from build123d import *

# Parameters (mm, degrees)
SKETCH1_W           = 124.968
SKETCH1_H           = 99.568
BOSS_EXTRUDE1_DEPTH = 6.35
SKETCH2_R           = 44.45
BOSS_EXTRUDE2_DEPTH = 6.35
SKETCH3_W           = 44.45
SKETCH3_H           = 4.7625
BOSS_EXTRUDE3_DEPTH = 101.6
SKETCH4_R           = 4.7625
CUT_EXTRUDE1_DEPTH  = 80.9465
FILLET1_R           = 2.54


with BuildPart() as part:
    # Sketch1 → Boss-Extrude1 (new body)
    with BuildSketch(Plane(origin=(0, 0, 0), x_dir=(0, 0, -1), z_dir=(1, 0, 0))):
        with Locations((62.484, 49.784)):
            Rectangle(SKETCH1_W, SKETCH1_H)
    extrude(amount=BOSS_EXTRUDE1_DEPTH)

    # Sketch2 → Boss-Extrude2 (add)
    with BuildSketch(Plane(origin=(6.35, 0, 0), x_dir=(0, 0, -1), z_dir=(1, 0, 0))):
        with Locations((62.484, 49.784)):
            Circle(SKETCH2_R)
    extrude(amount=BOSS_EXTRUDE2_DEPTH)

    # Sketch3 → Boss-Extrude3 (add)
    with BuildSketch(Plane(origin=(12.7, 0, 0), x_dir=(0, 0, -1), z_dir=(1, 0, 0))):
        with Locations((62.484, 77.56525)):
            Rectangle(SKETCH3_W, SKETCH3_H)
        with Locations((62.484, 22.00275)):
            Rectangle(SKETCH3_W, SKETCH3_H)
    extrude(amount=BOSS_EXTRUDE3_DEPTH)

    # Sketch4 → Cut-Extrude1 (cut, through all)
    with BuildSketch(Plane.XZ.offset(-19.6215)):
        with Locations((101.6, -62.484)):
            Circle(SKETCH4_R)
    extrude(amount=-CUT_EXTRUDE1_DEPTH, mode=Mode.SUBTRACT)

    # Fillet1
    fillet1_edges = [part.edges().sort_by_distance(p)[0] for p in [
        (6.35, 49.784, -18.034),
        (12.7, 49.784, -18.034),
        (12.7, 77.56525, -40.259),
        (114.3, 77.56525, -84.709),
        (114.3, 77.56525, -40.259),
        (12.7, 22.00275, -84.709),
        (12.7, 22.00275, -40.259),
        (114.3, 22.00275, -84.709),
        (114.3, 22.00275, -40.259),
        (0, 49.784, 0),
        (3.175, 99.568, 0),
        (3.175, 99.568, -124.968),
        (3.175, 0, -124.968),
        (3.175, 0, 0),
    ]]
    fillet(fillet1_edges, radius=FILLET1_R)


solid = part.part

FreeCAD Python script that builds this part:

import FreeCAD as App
import Part
import Sketcher
Q = App.Units.Quantity


def edges_at(feature, points):
    """Names of the edges that pass closest to the given points."""
    edges = feature.Shape.Edges
    near = lambda p: min(range(len(edges)), key=lambda i: edges[i].distToShape(Part.Vertex(*p))[0])
    return sorted({f"Edge{near(p) + 1}" for p in points})


def add_polygon(sketch, points):
    """Adds a closed chain of lines whose ends are joined by coincident constraints."""
    first, n = sketch.GeometryCount, len(points)
    for a, b in zip(points, points[1:] + points[:1]):
        sketch.addGeometry(Part.LineSegment(App.Vector(*a, 0), App.Vector(*b, 0)), False)
    for i in range(n):
        sketch.addConstraint(Sketcher.Constraint("Coincident", first + i, 2, first + (i + 1) % n, 1))

doc = App.newDocument("Part")
body = doc.addObject("PartDesign::Body", "Body")

# Sketch on YZ plane
sketch1 = doc.addObject("Sketcher::SketchObject", "Sketch")
body.addObject(sketch1)
sketch1.AttachmentSupport = (doc.YZ_Plane, [""])
sketch1.MapMode = "FlatFace"
add_polygon(sketch1, [(100, 0), (0, 0), (0, -125), (100, -125)])  # lines 0-3
sketch1.addConstraint([
    Sketcher.Constraint("Horizontal", 0),
    Sketcher.Constraint("Vertical", 1),
    Sketcher.Constraint("Horizontal", 2),
    Sketcher.Constraint("Vertical", 3),
    Sketcher.Constraint("Coincident", 0, 2, -1, 1),
    Sketcher.Constraint("DistanceX", 0, 2, 0, 1, Q("3.92 in")),
    Sketcher.Constraint("DistanceY", 1, 2, 1, 1, Q("4.92 in")),
])
pad1 = doc.addObject("PartDesign::Pad", "Pad")
body.addObject(pad1)
pad1.Profile = sketch1
pad1.Length = Q("0.25 in")

# Sketch on YZ plane
sketch2 = doc.addObject("Sketcher::SketchObject", "Sketch001")
body.addObject(sketch2)
sketch2.AttachmentSupport = (doc.YZ_Plane, [""])
sketch2.MapMode = "FlatFace"
sketch2.AttachmentOffset = App.Placement(App.Vector(0, 0, 0.25 * 25.4), App.Rotation())
sketch2.addGeometry(Part.Circle(App.Vector(50, -62, 0), App.Vector(0, 0, 1), 44), False)
sketch2.addConstraint([
    Sketcher.Constraint("Diameter", 0, Q("3.5 in")),
    Sketcher.Constraint("DistanceX", -1, 1, 0, 3, Q("1.96 in")),
    Sketcher.Constraint("DistanceY", 0, 3, -1, 1, Q("2.46 in")),
])
pad2 = doc.addObject("PartDesign::Pad", "Pad001")
body.addObject(pad2)
pad2.Profile = sketch2
pad2.Length = Q("0.25 in")

# Sketch on YZ plane
sketch3 = doc.addObject("Sketcher::SketchObject", "Sketch002")
body.addObject(sketch3)
sketch3.AttachmentSupport = (doc.YZ_Plane, [""])
sketch3.MapMode = "FlatFace"
sketch3.AttachmentOffset = App.Placement(App.Vector(0, 0, 0.5 * 25.4), App.Rotation())
add_polygon(sketch3, [(79.9, -40.3), (75.2, -40.3), (75.2, -84.7), (79.9, -84.7)])  # lines 0-3
add_polygon(sketch3, [(24.4, -40.3), (19.6, -40.3), (19.6, -84.7), (24.4, -84.7)])  # lines 4-7
sketch3.addConstraint([
    Sketcher.Constraint("Horizontal", 0),
    Sketcher.Constraint("Vertical", 1),
    Sketcher.Constraint("Horizontal", 2),
    Sketcher.Constraint("Vertical", 3),
    Sketcher.Constraint("Horizontal", 4),
    Sketcher.Constraint("Vertical", 5),
    Sketcher.Constraint("Horizontal", 6),
    Sketcher.Constraint("Vertical", 7),
    Sketcher.Constraint("Horizontal", 3, 2, 4, 2),
    Sketcher.Constraint("Horizontal", 2, 2, 5, 2),
    Sketcher.Constraint("Equal", 2, 4),
    Sketcher.Constraint("DistanceX", 6, 2, 1, 2, Q("2 in")),
    Sketcher.Constraint("DistanceY", 1, 2, 1, 1, Q("1.75 in")),
    Sketcher.Constraint("DistanceX", 0, 2, 0, 1, Q("0.1875 in")),
    Sketcher.Constraint("DistanceX", -1, 1, 0, 2, Q("2.96 in")),
    Sketcher.Constraint("DistanceY", 0, 2, -1, 1, Q("1.585 in")),
])
pad3 = doc.addObject("PartDesign::Pad", "Pad002")
body.addObject(pad3)
pad3.Profile = sketch3
pad3.Length = Q("4 in")

# Sketch on XZ plane
sketch4 = doc.addObject("Sketcher::SketchObject", "Sketch003")
body.addObject(sketch4)
sketch4.AttachmentSupport = (doc.XZ_Plane, [""])
sketch4.MapMode = "FlatFace"
sketch4.AttachmentOffset = App.Placement(App.Vector(0, 0, -0.7725 * 25.4), App.Rotation())
sketch4.addGeometry(Part.Circle(App.Vector(101.6, -62.5, 0), App.Vector(0, 0, 1), 4.8), False)
sketch4.addConstraint([
    Sketcher.Constraint("Diameter", 0, Q("0.375 in")),
    Sketcher.Constraint("DistanceX", -1, 1, 0, 3, Q("4 in")),
    Sketcher.Constraint("DistanceY", 0, 3, -1, 1, Q("2.46 in")),
])
pocket1 = doc.addObject("PartDesign::Pocket", "Pocket")
body.addObject(pocket1)
pocket1.Profile = sketch4
pocket1.Type = "ThroughAll"
doc.recompute()

fillet = doc.addObject("PartDesign::Fillet", "Fillet")
body.addObject(fillet)
fillet.Base = (pocket1, edges_at(pocket1, [
    (6.35, 49.784, -18.034),
    (12.7, 49.784, -18.034),
    (12.7, 77.565, -40.259),
    (114.3, 77.565, -84.709),
    (114.3, 77.565, -40.259),
    (12.7, 22.003, -84.709),
    (12.7, 22.003, -40.259),
    (114.3, 22.003, -84.709),
    (114.3, 22.003, -40.259),
    (0, 49.784, 0),
    (3.175, 99.568, 0),
    (3.175, 99.568, -124.968),
    (3.175, 0, -124.968),
    (3.175, 0, 0),
]))
fillet.Radius = Q("0.1 in")

doc.recompute()
